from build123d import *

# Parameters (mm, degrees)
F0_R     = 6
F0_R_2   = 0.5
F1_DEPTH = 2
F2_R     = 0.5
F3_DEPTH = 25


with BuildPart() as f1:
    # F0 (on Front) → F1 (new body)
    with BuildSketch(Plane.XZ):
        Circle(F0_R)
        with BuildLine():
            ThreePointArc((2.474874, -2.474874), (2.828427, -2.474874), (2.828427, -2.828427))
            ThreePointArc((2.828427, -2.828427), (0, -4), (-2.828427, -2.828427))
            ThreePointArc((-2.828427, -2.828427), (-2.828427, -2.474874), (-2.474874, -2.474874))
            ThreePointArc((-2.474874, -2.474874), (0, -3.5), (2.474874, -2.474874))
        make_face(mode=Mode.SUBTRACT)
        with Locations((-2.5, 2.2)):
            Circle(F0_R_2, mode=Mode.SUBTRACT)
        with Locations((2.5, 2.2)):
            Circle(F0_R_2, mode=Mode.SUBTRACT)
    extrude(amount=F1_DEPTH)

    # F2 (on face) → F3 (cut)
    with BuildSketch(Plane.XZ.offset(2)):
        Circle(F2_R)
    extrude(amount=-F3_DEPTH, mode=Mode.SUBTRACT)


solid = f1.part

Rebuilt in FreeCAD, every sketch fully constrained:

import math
import FreeCAD as App
import Part
import Sketcher
Q = App.Units.Quantity

doc = App.newDocument("Part")
body = doc.addObject("PartDesign::Body", "Body")

sketch1 = body.newObject("Sketcher::SketchObject", "Sketch")
sketch1.AttachmentSupport = (doc.getObject("XZ_Plane"), [""])
sketch1.MapMode = "FlatFace"
sketch1.addGeometry([
    Part.Circle(App.Vector(0, 0, 0), App.Vector(0, 0, 1), 6),
    Part.ArcOfCircle(Part.Circle(App.Vector(0, 0, 0), App.Vector(0, 0, 1), 3.5), math.radians(-135), math.radians(-45)),
    Part.ArcOfCircle(Part.Circle(App.Vector(2.65, -2.65, 0), App.Vector(0, 0, 1), 0.25), math.radians(-45), math.radians(135)),
    Part.ArcOfCircle(Part.Circle(App.Vector(0, 0, 0), App.Vector(0, 0, 1), 4), math.radians(-135), math.radians(-45)),
    Part.ArcOfCircle(Part.Circle(App.Vector(-2.65, -2.65, 0), App.Vector(0, 0, 1), 0.25), math.radians(45), math.radians(225)),
    Part.Circle(App.Vector(-2.5, 2.2, 0), App.Vector(0, 0, 1), 0.5),
    Part.Circle(App.Vector(2.5, 2.2, 0), App.Vector(0, 0, 1), 0.5),
], False)
sketch1.addConstraint([
    Sketcher.Constraint("Tangent", 1, 2, 2, 2),
    Sketcher.Constraint("Tangent", 2, 1, 3, 2),
    Sketcher.Constraint("Tangent", 3, 1, 4, 2),
    Sketcher.Constraint("Tangent", 4, 1, 1, 1),
    Sketcher.Constraint("Coincident", 0, 3, -1, 1),
    Sketcher.Constraint("Coincident", 1, 3, -1, 1),
    Sketcher.Constraint("Coincident", 3, 3, -1, 1),
    Sketcher.Constraint("Equal", 5, 6),
    Sketcher.Constraint("Symmetric", 5, 3, 6, 3, -2),
    Sketcher.Constraint("Horizontal", 2, 3, 4, 3),
    Sketcher.Constraint("Diameter", 0, Q("12 mm")),
    Sketcher.Constraint("Diameter", 5, Q("1 mm")),
    Sketcher.Constraint("Radius", 3, Q("3.999999 mm")),
    Sketcher.Constraint("Radius", 1, Q("3.500001 mm")),
    Sketcher.Constraint("DistanceX", 5, 3, 6, 3, Q("5 mm")),
    Sketcher.Constraint("DistanceY", -1, 1, 5, 3, Q("2.2 mm")),
    Sketcher.Constraint("DistanceX", 4, 3, 2, 3, Q("5.303301 mm")),
])
pad1 = body.newObject("PartDesign::Pad", "Pad")
pad1.Profile = sketch1
pad1.Length = 2

sketch2 = body.newObject("Sketcher::SketchObject", "Sketch001")
sketch2.AttachmentSupport = (doc.getObject("XZ_Plane"), [""])
sketch2.MapMode = "FlatFace"
sketch2.AttachmentOffset = App.Placement(App.Vector(0, 0, 2), App.Rotation())
sketch2.addGeometry(Part.Circle(App.Vector(0, 0, 0), App.Vector(0, 0, 1), 0.5), False)
sketch2.addConstraint([
    Sketcher.Constraint("Coincident", 0, 3, -1, 1),
    Sketcher.Constraint("Diameter", 0, Q("1 mm")),
])
pocket1 = body.newObject("PartDesign::Pocket", "Pocket")
pocket1.Profile = sketch2
pocket1.Length = 25

doc.recompute()
